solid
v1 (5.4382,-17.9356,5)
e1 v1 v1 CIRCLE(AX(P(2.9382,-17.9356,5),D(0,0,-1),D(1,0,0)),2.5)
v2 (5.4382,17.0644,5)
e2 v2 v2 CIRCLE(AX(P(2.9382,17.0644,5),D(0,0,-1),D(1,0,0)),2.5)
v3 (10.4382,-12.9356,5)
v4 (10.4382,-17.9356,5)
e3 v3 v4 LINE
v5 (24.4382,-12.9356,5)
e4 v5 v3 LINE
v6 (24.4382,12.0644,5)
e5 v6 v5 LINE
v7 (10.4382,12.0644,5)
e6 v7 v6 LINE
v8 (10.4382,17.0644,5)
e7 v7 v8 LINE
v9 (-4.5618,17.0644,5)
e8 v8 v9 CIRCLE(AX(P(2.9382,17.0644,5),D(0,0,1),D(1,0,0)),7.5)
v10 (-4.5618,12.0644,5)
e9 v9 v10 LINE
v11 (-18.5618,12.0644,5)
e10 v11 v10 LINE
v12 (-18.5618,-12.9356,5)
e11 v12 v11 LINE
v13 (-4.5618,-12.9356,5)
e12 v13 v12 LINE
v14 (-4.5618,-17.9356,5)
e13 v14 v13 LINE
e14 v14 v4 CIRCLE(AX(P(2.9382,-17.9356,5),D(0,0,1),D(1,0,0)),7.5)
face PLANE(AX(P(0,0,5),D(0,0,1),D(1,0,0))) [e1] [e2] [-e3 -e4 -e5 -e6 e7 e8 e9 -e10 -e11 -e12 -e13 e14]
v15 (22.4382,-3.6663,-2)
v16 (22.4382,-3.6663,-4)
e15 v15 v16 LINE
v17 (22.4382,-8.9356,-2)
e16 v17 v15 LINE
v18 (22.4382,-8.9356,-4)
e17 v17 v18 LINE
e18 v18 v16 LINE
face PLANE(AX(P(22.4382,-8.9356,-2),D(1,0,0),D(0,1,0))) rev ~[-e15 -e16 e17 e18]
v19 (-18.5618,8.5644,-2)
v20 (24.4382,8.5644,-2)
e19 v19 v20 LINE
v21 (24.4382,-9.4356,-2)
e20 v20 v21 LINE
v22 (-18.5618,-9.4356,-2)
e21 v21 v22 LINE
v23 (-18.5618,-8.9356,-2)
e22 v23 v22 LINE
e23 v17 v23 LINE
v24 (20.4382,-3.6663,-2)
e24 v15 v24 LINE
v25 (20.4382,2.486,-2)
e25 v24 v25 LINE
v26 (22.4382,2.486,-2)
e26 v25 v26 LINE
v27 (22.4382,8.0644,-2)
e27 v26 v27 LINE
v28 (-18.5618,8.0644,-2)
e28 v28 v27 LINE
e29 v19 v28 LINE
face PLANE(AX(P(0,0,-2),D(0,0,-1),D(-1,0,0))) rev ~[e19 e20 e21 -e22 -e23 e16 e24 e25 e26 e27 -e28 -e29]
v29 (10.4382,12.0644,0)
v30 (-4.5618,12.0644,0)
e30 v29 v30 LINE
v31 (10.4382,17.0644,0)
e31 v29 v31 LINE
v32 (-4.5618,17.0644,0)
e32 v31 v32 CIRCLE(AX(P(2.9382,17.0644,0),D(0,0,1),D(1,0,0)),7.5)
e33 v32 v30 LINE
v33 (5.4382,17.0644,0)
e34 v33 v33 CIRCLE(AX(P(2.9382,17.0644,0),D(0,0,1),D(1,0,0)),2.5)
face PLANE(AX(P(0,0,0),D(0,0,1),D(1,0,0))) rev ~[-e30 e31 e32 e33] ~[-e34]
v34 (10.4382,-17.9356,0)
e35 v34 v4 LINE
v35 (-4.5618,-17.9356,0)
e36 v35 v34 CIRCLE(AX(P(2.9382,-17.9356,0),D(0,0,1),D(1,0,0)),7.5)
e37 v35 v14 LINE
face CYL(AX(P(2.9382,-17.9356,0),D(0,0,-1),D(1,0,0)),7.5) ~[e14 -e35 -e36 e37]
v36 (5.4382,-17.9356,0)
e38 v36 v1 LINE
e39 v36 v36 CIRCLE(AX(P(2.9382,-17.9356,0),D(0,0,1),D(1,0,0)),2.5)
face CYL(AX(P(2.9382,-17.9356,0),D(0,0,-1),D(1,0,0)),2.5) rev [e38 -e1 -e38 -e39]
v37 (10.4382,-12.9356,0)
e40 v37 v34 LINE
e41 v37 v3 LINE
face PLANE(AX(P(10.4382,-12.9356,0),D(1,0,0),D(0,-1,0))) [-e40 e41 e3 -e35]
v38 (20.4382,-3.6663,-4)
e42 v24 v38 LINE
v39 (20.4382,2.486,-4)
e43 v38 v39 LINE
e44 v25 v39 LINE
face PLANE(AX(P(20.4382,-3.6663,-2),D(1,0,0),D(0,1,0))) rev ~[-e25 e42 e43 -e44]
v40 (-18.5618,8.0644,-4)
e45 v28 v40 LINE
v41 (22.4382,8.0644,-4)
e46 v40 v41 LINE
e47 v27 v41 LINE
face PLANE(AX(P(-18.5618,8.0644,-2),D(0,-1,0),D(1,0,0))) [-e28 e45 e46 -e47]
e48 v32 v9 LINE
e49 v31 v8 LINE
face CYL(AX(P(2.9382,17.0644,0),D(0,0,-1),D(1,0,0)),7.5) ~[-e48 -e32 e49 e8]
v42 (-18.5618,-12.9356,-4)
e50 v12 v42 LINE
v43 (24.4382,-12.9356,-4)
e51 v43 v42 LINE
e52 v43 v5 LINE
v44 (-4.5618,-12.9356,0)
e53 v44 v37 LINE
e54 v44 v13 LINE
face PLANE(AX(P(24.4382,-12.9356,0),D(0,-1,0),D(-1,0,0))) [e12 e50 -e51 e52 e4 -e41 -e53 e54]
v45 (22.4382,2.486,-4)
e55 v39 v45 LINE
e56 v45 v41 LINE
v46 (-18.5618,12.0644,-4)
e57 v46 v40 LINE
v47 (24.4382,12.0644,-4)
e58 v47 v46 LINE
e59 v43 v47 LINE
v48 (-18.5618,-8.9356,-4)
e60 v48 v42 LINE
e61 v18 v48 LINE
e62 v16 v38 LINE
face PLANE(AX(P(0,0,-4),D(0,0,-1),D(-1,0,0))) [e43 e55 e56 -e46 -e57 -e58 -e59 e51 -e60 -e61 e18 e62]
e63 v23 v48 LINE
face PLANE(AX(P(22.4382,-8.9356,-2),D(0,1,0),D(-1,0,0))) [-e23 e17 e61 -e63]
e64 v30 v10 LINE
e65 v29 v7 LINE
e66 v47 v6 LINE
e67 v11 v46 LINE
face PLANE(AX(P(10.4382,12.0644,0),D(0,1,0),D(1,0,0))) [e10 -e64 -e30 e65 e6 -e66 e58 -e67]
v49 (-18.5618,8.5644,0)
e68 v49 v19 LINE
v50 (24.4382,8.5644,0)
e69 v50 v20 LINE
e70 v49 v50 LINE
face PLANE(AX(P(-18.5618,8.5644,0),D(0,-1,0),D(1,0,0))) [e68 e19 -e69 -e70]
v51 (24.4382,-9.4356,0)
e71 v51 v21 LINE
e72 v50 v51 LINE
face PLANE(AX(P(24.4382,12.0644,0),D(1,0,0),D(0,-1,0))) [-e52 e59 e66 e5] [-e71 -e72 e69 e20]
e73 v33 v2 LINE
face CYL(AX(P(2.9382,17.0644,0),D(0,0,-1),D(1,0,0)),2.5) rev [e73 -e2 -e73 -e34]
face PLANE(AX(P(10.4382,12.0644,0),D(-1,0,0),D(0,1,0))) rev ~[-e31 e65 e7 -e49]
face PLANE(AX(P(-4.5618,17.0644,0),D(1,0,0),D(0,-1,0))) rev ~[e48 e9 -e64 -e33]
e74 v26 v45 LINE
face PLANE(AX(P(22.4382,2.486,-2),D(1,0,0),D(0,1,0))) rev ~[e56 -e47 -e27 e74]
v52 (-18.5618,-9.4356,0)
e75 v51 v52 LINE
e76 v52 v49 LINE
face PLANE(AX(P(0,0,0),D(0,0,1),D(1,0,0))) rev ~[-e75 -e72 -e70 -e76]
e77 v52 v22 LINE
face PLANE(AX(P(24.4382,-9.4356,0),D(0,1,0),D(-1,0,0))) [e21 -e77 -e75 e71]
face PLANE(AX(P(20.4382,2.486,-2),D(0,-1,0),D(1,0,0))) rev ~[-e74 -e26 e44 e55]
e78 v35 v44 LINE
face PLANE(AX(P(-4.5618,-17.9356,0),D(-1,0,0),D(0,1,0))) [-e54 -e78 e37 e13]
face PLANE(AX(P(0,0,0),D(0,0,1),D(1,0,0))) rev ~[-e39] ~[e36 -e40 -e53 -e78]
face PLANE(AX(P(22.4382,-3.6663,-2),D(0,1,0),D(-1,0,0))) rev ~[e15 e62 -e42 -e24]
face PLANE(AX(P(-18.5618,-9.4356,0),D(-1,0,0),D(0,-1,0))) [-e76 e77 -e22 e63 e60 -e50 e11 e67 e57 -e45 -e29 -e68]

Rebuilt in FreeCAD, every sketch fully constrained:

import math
import FreeCAD as App
import Part
import Sketcher
from FreeCAD import Vector
Q = App.Units.Quantity

doc = App.newDocument("Part")
body = doc.addObject("PartDesign::Body", "Body")

# Sketch on XY plane
sketch1 = doc.addObject("Sketcher::SketchObject", "Sketch")
body.addObject(sketch1)
sketch1.AttachmentSupport = (doc.XY_Plane, [""])
sketch1.MapMode = "FlatFace"
sketch1.addGeometry([
    Part.LineSegment(Vector(10.4382, -12.9356, 0), Vector(24.4382, -12.9356, 0)),  # 0
    Part.LineSegment(Vector(24.4382, -12.9356, 0), Vector(24.4382, 12.0644, 0)),  # 1
    Part.LineSegment(Vector(24.4382, 12.0644, 0), Vector(10.4382, 12.0644, 0)),  # 2
    Part.LineSegment(Vector(10.4382, 12.0644, 0), Vector(10.4382, 17.0644, 0)),  # 3
    Part.ArcOfCircle(Part.Circle(Vector(2.9382, 17.0644, 0), Vector(0, 0, 1), 7.5), math.radians(0), math.radians(180)),  # 4
    Part.LineSegment(Vector(-4.5618, 17.0644, 0), Vector(-4.5618, 12.0644, 0)),  # 5
    Part.LineSegment(Vector(-4.5618, 12.0644, 0), Vector(-18.5618, 12.0644, 0)),  # 6
    Part.LineSegment(Vector(-18.5618, 12.0644, 0), Vector(-18.5618, -12.9356, 0)),  # 7
    Part.LineSegment(Vector(-18.5618, -12.9356, 0), Vector(-4.5618, -12.9356, 0)),  # 8
    Part.LineSegment(Vector(-4.5618, -12.9356, 0), Vector(-4.5618, -17.9356, 0)),  # 9
    Part.ArcOfCircle(Part.Circle(Vector(2.9382, -17.9356, 0), Vector(0, 0, 1), 7.5), math.radians(180), math.radians(360)),  # 10
    Part.LineSegment(Vector(10.4382, -17.9356, 0), Vector(10.4382, -12.9356, 0)),  # 11
    Part.Circle(Vector(2.9382, -17.9356, 0), Vector(0, 0, 1), 2.5),  # 12
    Part.Circle(Vector(2.9382, 17.0644, 0), Vector(0, 0, 1), 2.5),  # 13
], False)
sketch1.addConstraint([
    Sketcher.Constraint("Coincident", 0, 2, 1, 1),
    Sketcher.Constraint("Coincident", 1, 2, 2, 1),
    Sketcher.Constraint("Coincident", 2, 2, 3, 1),
    Sketcher.Constraint("Tangent", 3, 2, 4, 1),
    Sketcher.Constraint("Tangent", 4, 2, 5, 1),
    Sketcher.Constraint("Coincident", 5, 2, 6, 1),
    Sketcher.Constraint("Coincident", 6, 2, 7, 1),
    Sketcher.Constraint("Coincident", 7, 2, 8, 1),
    Sketcher.Constraint("Coincident", 8, 2, 9, 1),
    Sketcher.Constraint("Tangent", 9, 2, 10, 1),
    Sketcher.Constraint("Tangent", 10, 2, 11, 1),
    Sketcher.Constraint("Coincident", 11, 2, 0, 1),
    Sketcher.Constraint("Horizontal", 0),
    Sketcher.Constraint("Vertical", 1),
    Sketcher.Constraint("Horizontal", 2),
    Sketcher.Constraint("Vertical", 3),
    Sketcher.Constraint("Vertical", 5),
    Sketcher.Constraint("Horizontal", 6),
    Sketcher.Constraint("Vertical", 7),
    Sketcher.Constraint("Horizontal", 8),
    Sketcher.Constraint("Vertical", 9),
    Sketcher.Constraint("Vertical", 11),
    Sketcher.Constraint("Coincident", 12, 3, 10, 3),
    Sketcher.Constraint("Coincident", 13, 3, 4, 3),
    Sketcher.Constraint("Equal", 4, 10),
    Sketcher.Constraint("Equal", 12, 13),
    Sketcher.Constraint("Horizontal", 2, 2, 5, 2),
    Sketcher.Constraint("Horizontal", 0, 2, 7, 2),
    Sketcher.Constraint("Vertical", 4, 3, 10, 3),
    Sketcher.Constraint("Equal", 2, 6),
    Sketcher.Constraint("Equal", 5, 9),
    Sketcher.Constraint("Diameter", 12, Q("5 mm")),
    Sketcher.Constraint("Radius", 4, Q("7.5 mm")),
    Sketcher.Constraint("DistanceY", 1, 1, 1, 2, Q("25 mm")),
    Sketcher.Constraint("DistanceY", 3, 1, 3, 2, Q("5 mm")),
    Sketcher.Constraint("DistanceX", 10, 3, 0, 2, Q("21.5 mm")),
    Sketcher.Constraint("DistanceX", -1, 1, 4, 3, Q("2.9382 mm")),
    Sketcher.Constraint("DistanceY", -1, 1, 4, 3, Q("17.0644 mm")),
])
pad1 = doc.addObject("PartDesign::Pad", "Pad")
body.addObject(pad1)
pad1.Profile = sketch1
pad1.Length = 5

# Sketch on XY plane
sketch2 = doc.addObject("Sketcher::SketchObject", "Sketch001")
body.addObject(sketch2)
sketch2.AttachmentSupport = (doc.XY_Plane, [""])
sketch2.MapMode = "FlatFace"
sketch2.addGeometry([
    Part.LineSegment(Vector(-18.5618, 8.5644, 0), Vector(-18.5618, 12.0644, 0)),  # 0
    Part.LineSegment(Vector(-18.5618, 12.0644, 0), Vector(24.4382, 12.0644, 0)),  # 1
    Part.LineSegment(Vector(24.4382, 12.0644, 0), Vector(24.4382, 8.5644, 0)),  # 2
    Part.LineSegment(Vector(24.4382, 8.5644, 0), Vector(-18.5618, 8.5644, 0)),  # 3
    Part.LineSegment(Vector(-18.5618, -12.9356, 0), Vector(-18.5618, -9.4356, 0)),  # 4
    Part.LineSegment(Vector(-18.5618, -9.4356, 0), Vector(24.4382, -9.4356, 0)),  # 5
    Part.LineSegment(Vector(24.4382, -9.4356, 0), Vector(24.4382, -12.9356, 0)),  # 6
    Part.LineSegment(Vector(24.4382, -12.9356, 0), Vector(-18.5618, -12.9356, 0)),  # 7
], False)
sketch2.addConstraint([
    Sketcher.Constraint("Coincident", 0, 2, 1, 1),
    Sketcher.Constraint("Coincident", 1, 2, 2, 1),
    Sketcher.Constraint("Coincident", 2, 2, 3, 1),
    Sketcher.Constraint("Coincident", 3, 2, 0, 1),
    Sketcher.Constraint("Coincident", 4, 2, 5, 1),
    Sketcher.Constraint("Coincident", 5, 2, 6, 1),
    Sketcher.Constraint("Coincident", 6, 2, 7, 1),
    Sketcher.Constraint("Coincident", 7, 2, 4, 1),
    Sketcher.Constraint("Vertical", 0),
    Sketcher.Constraint("Horizontal", 1),
    Sketcher.Constraint("Vertical", 2),
    Sketcher.Constraint("Horizontal", 3),
    Sketcher.Constraint("Vertical", 4),
    Sketcher.Constraint("Horizontal", 5),
    Sketcher.Constraint("Vertical", 6),
    Sketcher.Constraint("Horizontal", 7),
    Sketcher.Constraint("Vertical", 3, 2, 4, 2),
    Sketcher.Constraint("Vertical", 2, 2, 5, 2),
    Sketcher.Constraint("Equal", 2, 4),
    Sketcher.Constraint("DistanceY", 0, 1, 0, 2, Q("3.5 mm")),
    Sketcher.Constraint("DistanceX", 1, 1, 1, 2, Q("43 mm")),
    Sketcher.Constraint("DistanceY", 4, 2, 3, 2, Q("18 mm")),
    Sketcher.Constraint("DistanceX", 0, 2, -1, 1, Q("18.5618 mm")),
    Sketcher.Constraint("DistanceY", -1, 1, 0, 2, Q("12.0644 mm")),
])
pad2 = doc.addObject("PartDesign::Pad", "Pad001")
body.addObject(pad2)
pad2.Profile = sketch2
pad2.Length = 2
pad2.Reversed = True

# Sketch on XY plane
sketch3 = doc.addObject("Sketcher::SketchObject", "Sketch002")
body.addObject(sketch3)
sketch3.AttachmentSupport = (doc.XY_Plane, [""])
sketch3.MapMode = "FlatFace"
sketch3.AttachmentOffset = App.Placement(Vector(0, 0, -2), App.Rotation())
sketch3.addGeometry([
    Part.LineSegment(Vector(24.4382, -12.9356, 0), Vector(-18.5618, -12.9356, 0)),  # 0
    Part.LineSegment(Vector(-18.5618, -12.9356, 0), Vector(-18.5618, -8.9356, 0)),  # 1
    Part.LineSegment(Vector(-18.5618, -8.9356, 0), Vector(22.4382, -8.9356, 0)),  # 2
    Part.LineSegment(Vector(22.4382, -8.9356, 0), Vector(22.4382, -3.6663, 0)),  # 3
    Part.LineSegment(Vector(22.4382, -3.6663, 0), Vector(20.4382, -3.6663, 0)),  # 4
    Part.LineSegment(Vector(20.4382, -3.6663, 0), Vector(20.4382, 2.486, 0)),  # 5
    Part.LineSegment(Vector(20.4382, 2.486, 0), Vector(22.4382, 2.486, 0)),  # 6
    Part.LineSegment(Vector(22.4382, 2.486, 0), Vector(22.4382, 8.0644, 0)),  # 7
    Part.LineSegment(Vector(22.4382, 8.0644, 0), Vector(-18.5618, 8.0644, 0)),  # 8
    Part.LineSegment(Vector(-18.5618, 8.0644, 0), Vector(-18.5618, 12.0644, 0)),  # 9
    Part.LineSegment(Vector(-18.5618, 12.0644, 0), Vector(24.4382, 12.0644, 0)),  # 10
    Part.LineSegment(Vector(24.4382, 12.0644, 0), Vector(24.4382, -12.9356, 0)),  # 11
], False)
sketch3.addConstraint([
    Sketcher.Constraint("Coincident", 0, 2, 1, 1),
    Sketcher.Constraint("Coincident", 1, 2, 2, 1),
    Sketcher.Constraint("Coincident", 2, 2, 3, 1),
    Sketcher.Constraint("Coincident", 3, 2, 4, 1),
    Sketcher.Constraint("Coincident", 4, 2, 5, 1),
    Sketcher.Constraint("Coincident", 5, 2, 6, 1),
    Sketcher.Constraint("Coincident", 6, 2, 7, 1),
    Sketcher.Constraint("Coincident", 7, 2, 8, 1),
    Sketcher.Constraint("Coincident", 8, 2, 9, 1),
    Sketcher.Constraint("Coincident", 9, 2, 10, 1),
    Sketcher.Constraint("Coincident", 10, 2, 11, 1),
    Sketcher.Constraint("Coincident", 11, 2, 0, 1),
    Sketcher.Constraint("Horizontal", 0),
    Sketcher.Constraint("Vertical", 1),
    Sketcher.Constraint("Horizontal", 2),
    Sketcher.Constraint("Vertical", 3),
    Sketcher.Constraint("Horizontal", 4),
    Sketcher.Constraint("Vertical", 5),
    Sketcher.Constraint("Horizontal", 6),
    Sketcher.Constraint("Vertical", 7),
    Sketcher.Constraint("Horizontal", 8),
    Sketcher.Constraint("Vertical", 9),
    Sketcher.Constraint("Horizontal", 10),
    Sketcher.Constraint("Vertical", 11),
    Sketcher.Constraint("Vertical", 3, 2, 6, 2),
    Sketcher.Constraint("Vertical", 1, 2, 8, 2),
    Sketcher.Constraint("Equal", 1, 9),
    Sketcher.Constraint("DistanceX", 4, 2, 4, 1, Q("2 mm")),
    Sketcher.Constraint("DistanceY", 1, 1, 1, 2, Q("4 mm")),
    Sketcher.Constraint("DistanceX", 7, 2, 10, 2, Q("2 mm")),
    Sketcher.Constraint("DistanceX", 0, 2, 0, 1, Q("43 mm")),
    Sketcher.Constraint("DistanceY", 11, 2, 11, 1, Q("25 mm")),
    Sketcher.Constraint("DistanceY", 3, 1, 3, 2, Q("5.2693 mm")),
    Sketcher.Constraint("DistanceY", 5, 1, 5, 2, Q("6.1523 mm")),
    Sketcher.Constraint("DistanceY", -1, 1, 5, 2, Q("2.486 mm")),
    Sketcher.Constraint("DistanceX", 0, 2, -1, 1, Q("18.5618 mm")),
])
pad3 = doc.addObject("PartDesign::Pad", "Pad002")
body.addObject(pad3)
pad3.Profile = sketch3
pad3.Length = 2
pad3.Reversed = True

doc.recompute()
